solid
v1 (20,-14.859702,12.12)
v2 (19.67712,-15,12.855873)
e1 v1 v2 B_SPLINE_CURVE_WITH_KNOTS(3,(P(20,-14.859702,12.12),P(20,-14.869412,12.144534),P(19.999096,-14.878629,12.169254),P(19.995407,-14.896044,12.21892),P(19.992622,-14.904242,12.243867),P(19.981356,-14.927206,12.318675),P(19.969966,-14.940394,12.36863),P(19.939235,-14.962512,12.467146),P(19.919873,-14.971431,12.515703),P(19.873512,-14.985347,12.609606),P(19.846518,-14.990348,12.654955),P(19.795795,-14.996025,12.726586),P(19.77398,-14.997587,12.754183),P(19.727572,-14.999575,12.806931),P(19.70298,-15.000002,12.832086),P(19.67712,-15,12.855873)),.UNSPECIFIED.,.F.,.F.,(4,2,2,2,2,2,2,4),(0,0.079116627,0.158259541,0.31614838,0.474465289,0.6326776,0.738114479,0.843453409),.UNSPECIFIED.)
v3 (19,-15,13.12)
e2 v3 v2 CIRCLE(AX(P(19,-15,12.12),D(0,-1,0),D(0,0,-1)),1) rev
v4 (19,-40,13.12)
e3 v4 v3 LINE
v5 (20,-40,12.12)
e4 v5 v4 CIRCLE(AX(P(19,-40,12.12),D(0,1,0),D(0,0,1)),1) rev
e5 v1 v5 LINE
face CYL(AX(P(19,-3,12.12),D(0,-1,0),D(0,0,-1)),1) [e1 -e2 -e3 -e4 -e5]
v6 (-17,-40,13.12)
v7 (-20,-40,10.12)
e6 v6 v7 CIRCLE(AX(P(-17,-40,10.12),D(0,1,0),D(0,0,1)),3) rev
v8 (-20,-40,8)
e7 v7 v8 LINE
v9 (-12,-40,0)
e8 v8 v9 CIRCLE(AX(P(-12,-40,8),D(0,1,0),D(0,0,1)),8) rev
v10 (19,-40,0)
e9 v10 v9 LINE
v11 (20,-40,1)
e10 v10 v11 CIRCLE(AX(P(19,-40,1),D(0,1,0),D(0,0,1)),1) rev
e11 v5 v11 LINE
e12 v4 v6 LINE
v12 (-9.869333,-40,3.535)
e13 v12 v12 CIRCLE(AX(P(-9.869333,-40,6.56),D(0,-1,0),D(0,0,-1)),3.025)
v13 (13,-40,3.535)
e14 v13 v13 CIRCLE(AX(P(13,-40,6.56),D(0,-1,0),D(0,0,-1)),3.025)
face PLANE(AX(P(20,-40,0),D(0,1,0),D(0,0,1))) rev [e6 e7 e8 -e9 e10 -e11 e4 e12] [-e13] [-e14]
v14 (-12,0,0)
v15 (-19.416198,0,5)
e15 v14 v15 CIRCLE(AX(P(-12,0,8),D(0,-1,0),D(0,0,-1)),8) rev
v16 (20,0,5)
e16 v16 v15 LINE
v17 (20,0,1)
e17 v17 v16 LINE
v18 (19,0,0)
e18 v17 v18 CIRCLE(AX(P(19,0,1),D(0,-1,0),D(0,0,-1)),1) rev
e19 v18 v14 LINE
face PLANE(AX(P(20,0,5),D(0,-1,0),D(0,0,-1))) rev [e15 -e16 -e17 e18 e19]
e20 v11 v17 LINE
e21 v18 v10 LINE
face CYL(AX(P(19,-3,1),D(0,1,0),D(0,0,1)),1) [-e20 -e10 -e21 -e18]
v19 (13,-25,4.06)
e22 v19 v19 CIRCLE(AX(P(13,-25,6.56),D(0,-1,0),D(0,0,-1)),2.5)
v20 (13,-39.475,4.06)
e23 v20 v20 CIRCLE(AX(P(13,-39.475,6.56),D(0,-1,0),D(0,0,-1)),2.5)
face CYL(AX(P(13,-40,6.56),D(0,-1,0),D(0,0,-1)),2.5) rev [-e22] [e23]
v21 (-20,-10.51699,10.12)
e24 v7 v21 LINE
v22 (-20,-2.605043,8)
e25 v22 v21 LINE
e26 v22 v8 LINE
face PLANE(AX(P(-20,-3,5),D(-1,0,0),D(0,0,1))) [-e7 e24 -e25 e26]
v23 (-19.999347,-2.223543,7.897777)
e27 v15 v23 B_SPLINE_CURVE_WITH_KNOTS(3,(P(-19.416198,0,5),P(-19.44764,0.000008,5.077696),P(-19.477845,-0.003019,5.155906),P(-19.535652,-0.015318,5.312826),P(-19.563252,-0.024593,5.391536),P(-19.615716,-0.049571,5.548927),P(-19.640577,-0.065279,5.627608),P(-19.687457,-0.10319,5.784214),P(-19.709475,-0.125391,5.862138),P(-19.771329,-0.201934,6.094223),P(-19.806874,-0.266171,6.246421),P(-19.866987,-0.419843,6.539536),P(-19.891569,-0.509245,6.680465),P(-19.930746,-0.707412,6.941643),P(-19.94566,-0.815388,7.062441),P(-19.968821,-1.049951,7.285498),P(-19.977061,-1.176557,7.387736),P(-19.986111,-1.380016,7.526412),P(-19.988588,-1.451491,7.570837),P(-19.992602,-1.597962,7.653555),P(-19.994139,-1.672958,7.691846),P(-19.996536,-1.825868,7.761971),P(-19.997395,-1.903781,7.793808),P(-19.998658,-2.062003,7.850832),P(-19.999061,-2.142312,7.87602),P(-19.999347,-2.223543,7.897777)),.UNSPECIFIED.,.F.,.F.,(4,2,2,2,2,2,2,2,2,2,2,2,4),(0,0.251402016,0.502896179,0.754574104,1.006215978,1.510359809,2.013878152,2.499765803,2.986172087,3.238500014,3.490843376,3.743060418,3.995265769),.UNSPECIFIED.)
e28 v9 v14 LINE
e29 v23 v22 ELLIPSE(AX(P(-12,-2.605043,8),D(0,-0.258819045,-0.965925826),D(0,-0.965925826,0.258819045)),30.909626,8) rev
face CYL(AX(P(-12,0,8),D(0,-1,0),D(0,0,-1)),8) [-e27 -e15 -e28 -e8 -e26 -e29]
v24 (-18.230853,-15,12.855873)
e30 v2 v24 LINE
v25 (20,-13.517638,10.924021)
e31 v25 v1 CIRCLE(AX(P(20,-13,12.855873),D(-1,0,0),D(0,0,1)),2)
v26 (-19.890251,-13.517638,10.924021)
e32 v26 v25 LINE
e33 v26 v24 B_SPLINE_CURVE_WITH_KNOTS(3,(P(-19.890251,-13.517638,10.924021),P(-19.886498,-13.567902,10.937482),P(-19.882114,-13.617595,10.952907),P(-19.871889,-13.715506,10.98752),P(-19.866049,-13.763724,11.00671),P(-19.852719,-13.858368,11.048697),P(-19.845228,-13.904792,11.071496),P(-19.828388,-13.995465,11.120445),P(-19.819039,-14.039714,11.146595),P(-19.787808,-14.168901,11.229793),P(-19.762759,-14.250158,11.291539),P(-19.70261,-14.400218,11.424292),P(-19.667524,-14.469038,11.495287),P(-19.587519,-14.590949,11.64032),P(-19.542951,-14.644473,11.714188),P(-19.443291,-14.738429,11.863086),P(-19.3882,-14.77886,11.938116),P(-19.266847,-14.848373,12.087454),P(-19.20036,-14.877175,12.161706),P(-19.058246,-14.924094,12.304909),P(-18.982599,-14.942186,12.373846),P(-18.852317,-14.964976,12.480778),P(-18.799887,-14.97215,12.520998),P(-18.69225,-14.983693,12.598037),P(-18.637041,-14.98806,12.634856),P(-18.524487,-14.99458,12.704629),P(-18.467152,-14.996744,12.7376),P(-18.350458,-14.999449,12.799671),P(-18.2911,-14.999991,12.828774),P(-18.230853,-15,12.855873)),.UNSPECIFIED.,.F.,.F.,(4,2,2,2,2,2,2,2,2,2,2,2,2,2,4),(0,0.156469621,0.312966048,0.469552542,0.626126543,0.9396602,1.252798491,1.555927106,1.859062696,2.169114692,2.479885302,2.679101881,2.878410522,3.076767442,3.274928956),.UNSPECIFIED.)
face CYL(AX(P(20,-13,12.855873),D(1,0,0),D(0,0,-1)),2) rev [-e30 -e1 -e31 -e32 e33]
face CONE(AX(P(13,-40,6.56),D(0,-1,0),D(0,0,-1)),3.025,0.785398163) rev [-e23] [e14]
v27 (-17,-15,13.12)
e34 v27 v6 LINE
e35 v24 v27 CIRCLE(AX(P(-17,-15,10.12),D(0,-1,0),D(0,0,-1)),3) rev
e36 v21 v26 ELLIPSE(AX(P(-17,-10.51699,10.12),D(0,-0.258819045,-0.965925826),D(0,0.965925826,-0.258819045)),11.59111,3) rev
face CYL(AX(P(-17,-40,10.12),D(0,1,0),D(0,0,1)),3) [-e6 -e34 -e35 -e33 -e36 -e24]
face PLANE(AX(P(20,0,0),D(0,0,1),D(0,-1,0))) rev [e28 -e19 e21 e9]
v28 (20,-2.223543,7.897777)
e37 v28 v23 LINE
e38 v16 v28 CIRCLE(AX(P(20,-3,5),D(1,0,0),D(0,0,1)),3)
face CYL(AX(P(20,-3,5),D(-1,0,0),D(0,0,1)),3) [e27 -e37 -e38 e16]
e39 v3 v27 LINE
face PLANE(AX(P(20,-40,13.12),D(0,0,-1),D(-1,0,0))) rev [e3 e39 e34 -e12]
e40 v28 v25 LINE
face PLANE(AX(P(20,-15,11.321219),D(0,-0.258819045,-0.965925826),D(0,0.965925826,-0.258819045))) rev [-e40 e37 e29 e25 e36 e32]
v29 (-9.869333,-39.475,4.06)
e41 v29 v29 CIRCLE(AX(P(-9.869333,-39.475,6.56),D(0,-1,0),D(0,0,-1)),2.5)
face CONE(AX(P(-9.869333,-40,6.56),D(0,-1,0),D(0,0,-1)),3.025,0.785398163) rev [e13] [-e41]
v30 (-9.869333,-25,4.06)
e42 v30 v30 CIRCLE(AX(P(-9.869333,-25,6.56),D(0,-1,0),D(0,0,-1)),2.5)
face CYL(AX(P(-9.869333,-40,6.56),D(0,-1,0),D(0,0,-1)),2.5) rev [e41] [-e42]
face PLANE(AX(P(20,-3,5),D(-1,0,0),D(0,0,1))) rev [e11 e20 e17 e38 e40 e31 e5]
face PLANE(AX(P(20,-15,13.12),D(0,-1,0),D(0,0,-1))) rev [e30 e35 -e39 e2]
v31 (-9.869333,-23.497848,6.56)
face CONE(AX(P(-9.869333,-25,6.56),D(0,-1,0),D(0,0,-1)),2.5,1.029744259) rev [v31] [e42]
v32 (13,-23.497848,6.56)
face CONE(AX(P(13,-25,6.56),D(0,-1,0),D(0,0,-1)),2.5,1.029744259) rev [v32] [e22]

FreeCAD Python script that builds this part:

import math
import FreeCAD as App
import Part
import Sketcher
Q = App.Units.Quantity


def edges_at(feature, points):
    """Names of the edges that pass closest to the given points."""
    edges = feature.Shape.Edges
    near = lambda p: min(range(len(edges)), key=lambda i: edges[i].distToShape(Part.Vertex(*p))[0])
    return sorted({f"Edge{near(p) + 1}" for p in points})

doc = App.newDocument("Part")
params = doc.addObject("Spreadsheet::Sheet", "Params")
for row, (alias, value) in enumerate([
    ("sketch1_radius", "3 mm"),
    ("sketch1_width", "25 mm"),
    ("sketch1_width2", "40 mm"),
    ("sketch1_height", "5 mm"),
    ("sketch1_height2", "13.12 mm"),
    ("pad1_length", "40 mm"),
    ("fillet_radius", "1 mm"),
    ("fillet2_radius", "2 mm"),
    ("fillet3_radius", "8 mm"),
    ("fillet4_radius", "3 mm"),
    ("sketch2_diameter", "5 mm"),
    ("hole_diameter", "5 mm"),
    ("hole_depth", "15 mm"),
    ("hole_csink_diameter", "6.05 mm"),
], start=1):
    params.set(f"A{row}", alias)
    params.set(f"B{row}", "=" + value)
    params.setAlias(f"B{row}", alias)

body = doc.addObject("PartDesign::Body", "Body")

sketch1 = body.newObject("Sketcher::SketchObject", "Sketch")
sketch1.AttachmentSupport = (doc.getObject("YZ_Plane"), [""])
sketch1.MapMode = "FlatFace"
sketch1.addGeometry(Part.LineSegment(App.Vector(0, 0, 0), App.Vector(0, 5, 0)), False)
sketch1.addGeometry(Part.ArcOfCircle(Part.Circle(App.Vector(-3, 5, 0), App.Vector(0, 0, 1), 3), math.radians(0), math.radians(75)), False)
sketch1.addGeometry(Part.LineSegment(App.Vector(-2.2, 7.9, 0), App.Vector(-15, 11.3, 0)), False)
sketch1.addGeometry(Part.LineSegment(App.Vector(-15, 11.3, 0), App.Vector(-15, 13.1, 0)), False)
sketch1.addGeometry(Part.LineSegment(App.Vector(-15, 13.1, 0), App.Vector(-40, 13.1, 0)), False)
sketch1.addGeometry(Part.LineSegment(App.Vector(-40, 13.1, 0), App.Vector(-40, 0, 0)), False)
sketch1.addGeometry(Part.LineSegment(App.Vector(-40, 0, 0), App.Vector(0, 0, 0)), False)
sketch1.addConstraint(Sketcher.Constraint("Tangent", 0, 2, 1, 1))
sketch1.addConstraint(Sketcher.Constraint("Tangent", 1, 2, 2, 1))
sketch1.addConstraint(Sketcher.Constraint("Coincident", 2, 2, 3, 1))
sketch1.addConstraint(Sketcher.Constraint("Coincident", 3, 2, 4, 1))
sketch1.addConstraint(Sketcher.Constraint("Coincident", 4, 2, 5, 1))
sketch1.addConstraint(Sketcher.Constraint("Coincident", 5, 2, 6, 1))
sketch1.addConstraint(Sketcher.Constraint("Coincident", 6, 2, 0, 1))
sketch1.addConstraint(Sketcher.Constraint("Vertical", 0))
sketch1.addConstraint(Sketcher.Constraint("Vertical", 3))
sketch1.addConstraint(Sketcher.Constraint("Horizontal", 4))
sketch1.addConstraint(Sketcher.Constraint("Vertical", 5))
sketch1.addConstraint(Sketcher.Constraint("Horizontal", 6))
sketch1.addConstraint(Sketcher.Constraint("Coincident", 6, 2, -1, 1))
sketch1.addConstraint(Sketcher.Constraint("Radius", 1, Q("3 mm")))
sketch1.addConstraint(Sketcher.Constraint("DistanceX", 4, 2, 4, 1, Q("25 mm")))
sketch1.addConstraint(Sketcher.Constraint("DistanceX", 6, 1, 6, 2, Q("40 mm")))
sketch1.addConstraint(Sketcher.Constraint("DistanceY", 0, 1, 0, 2, Q("5 mm")))
sketch1.addConstraint(Sketcher.Constraint("Angle", 2, Q("165 deg")))
sketch1.addConstraint(Sketcher.Constraint("DistanceY", 5, 2, 5, 1, Q("13.12 mm")))
sketch1.setExpression("Constraints[13]", "Params.sketch1_radius")
sketch1.setExpression("Constraints[14]", "Params.sketch1_width")
sketch1.setExpression("Constraints[15]", "Params.sketch1_width2")
sketch1.setExpression("Constraints[16]", "Params.sketch1_height")
sketch1.setExpression("Constraints[18]", "Params.sketch1_height2")
pad1 = body.newObject("PartDesign::Pad", "Pad")
pad1.Profile = sketch1
pad1.setExpression("Length", "Params.pad1_length")
pad1.Midplane = True
doc.recompute()

fillet = body.newObject("PartDesign::Fillet", "Fillet")
fillet.Base = (pad1, edges_at(pad1, [(20, -27.5, 13.12), (20, -20, 0)]))
fillet.setExpression("Radius", "Params.fillet_radius")
doc.recompute()

fillet2 = body.newObject("PartDesign::Fillet", "Fillet001")
fillet2.Base = (fillet, edges_at(fillet, [(0, -15, 11.321)]))
fillet2.setExpression("Radius", "Params.fillet2_radius")
doc.recompute()

fillet3 = body.newObject("PartDesign::Fillet", "Fillet002")
fillet3.Base = (fillet2, edges_at(fillet2, [(-20, -20, 0)]))
fillet3.setExpression("Radius", "Params.fillet3_radius")
doc.recompute()

fillet4 = body.newObject("PartDesign::Fillet", "Fillet003")
fillet4.Base = (fillet3, edges_at(fillet3, [(-20, -27.5, 13.12)]))
fillet4.setExpression("Radius", "Params.fillet4_radius")

sketch2 = body.newObject("Sketcher::SketchObject", "Sketch001")
sketch2.AttachmentSupport = (doc.getObject("XZ_Plane"), [""])
sketch2.MapMode = "FlatFace"
sketch2.AttachmentOffset = App.Placement(App.Vector(0, 0, 40), App.Rotation())
sketch2.addGeometry(Part.Circle(App.Vector(13, 6.6, 0), App.Vector(0, 0, 1), 2.5), False)
sketch2.addGeometry(Part.Circle(App.Vector(-9.9, 6.6, 0), App.Vector(0, 0, 1), 2.5), False)
sketch2.addConstraint(Sketcher.Constraint("Equal", 0, 1))
sketch2.addConstraint(Sketcher.Constraint("Horizontal", 0, 3, 1, 3))
sketch2.addConstraint(Sketcher.Constraint("Diameter", 0, Q("5 mm")))
sketch2.addConstraint(Sketcher.Constraint("DistanceX", -1, 1, 0, 3, Q("13 mm")))
sketch2.addConstraint(Sketcher.Constraint("DistanceY", -1, 1, 0, 3, Q("6.56 mm")))
sketch2.addConstraint(Sketcher.Constraint("DistanceX", 1, 3, -1, 1, Q("9.869333 mm")))
sketch2.setExpression("Constraints[2]", "Params.sketch2_diameter")
doc.recompute()
hole = body.newObject("PartDesign::Hole", "Hole")
hole.Profile = sketch2
hole.ThreadType = "None"
hole.setExpression("Diameter", "Params.hole_diameter")
hole.DepthType = "Dimension"
hole.setExpression("Depth", "Params.hole_depth")
hole.DrillPoint = "Angled"
hole.DrillPointAngle = 118
hole.HoleCutType = "Countersink"
hole.setExpression("HoleCutDiameter", "Params.hole_csink_diameter")
hole.HoleCutCountersinkAngle = 90

doc.recompute()
